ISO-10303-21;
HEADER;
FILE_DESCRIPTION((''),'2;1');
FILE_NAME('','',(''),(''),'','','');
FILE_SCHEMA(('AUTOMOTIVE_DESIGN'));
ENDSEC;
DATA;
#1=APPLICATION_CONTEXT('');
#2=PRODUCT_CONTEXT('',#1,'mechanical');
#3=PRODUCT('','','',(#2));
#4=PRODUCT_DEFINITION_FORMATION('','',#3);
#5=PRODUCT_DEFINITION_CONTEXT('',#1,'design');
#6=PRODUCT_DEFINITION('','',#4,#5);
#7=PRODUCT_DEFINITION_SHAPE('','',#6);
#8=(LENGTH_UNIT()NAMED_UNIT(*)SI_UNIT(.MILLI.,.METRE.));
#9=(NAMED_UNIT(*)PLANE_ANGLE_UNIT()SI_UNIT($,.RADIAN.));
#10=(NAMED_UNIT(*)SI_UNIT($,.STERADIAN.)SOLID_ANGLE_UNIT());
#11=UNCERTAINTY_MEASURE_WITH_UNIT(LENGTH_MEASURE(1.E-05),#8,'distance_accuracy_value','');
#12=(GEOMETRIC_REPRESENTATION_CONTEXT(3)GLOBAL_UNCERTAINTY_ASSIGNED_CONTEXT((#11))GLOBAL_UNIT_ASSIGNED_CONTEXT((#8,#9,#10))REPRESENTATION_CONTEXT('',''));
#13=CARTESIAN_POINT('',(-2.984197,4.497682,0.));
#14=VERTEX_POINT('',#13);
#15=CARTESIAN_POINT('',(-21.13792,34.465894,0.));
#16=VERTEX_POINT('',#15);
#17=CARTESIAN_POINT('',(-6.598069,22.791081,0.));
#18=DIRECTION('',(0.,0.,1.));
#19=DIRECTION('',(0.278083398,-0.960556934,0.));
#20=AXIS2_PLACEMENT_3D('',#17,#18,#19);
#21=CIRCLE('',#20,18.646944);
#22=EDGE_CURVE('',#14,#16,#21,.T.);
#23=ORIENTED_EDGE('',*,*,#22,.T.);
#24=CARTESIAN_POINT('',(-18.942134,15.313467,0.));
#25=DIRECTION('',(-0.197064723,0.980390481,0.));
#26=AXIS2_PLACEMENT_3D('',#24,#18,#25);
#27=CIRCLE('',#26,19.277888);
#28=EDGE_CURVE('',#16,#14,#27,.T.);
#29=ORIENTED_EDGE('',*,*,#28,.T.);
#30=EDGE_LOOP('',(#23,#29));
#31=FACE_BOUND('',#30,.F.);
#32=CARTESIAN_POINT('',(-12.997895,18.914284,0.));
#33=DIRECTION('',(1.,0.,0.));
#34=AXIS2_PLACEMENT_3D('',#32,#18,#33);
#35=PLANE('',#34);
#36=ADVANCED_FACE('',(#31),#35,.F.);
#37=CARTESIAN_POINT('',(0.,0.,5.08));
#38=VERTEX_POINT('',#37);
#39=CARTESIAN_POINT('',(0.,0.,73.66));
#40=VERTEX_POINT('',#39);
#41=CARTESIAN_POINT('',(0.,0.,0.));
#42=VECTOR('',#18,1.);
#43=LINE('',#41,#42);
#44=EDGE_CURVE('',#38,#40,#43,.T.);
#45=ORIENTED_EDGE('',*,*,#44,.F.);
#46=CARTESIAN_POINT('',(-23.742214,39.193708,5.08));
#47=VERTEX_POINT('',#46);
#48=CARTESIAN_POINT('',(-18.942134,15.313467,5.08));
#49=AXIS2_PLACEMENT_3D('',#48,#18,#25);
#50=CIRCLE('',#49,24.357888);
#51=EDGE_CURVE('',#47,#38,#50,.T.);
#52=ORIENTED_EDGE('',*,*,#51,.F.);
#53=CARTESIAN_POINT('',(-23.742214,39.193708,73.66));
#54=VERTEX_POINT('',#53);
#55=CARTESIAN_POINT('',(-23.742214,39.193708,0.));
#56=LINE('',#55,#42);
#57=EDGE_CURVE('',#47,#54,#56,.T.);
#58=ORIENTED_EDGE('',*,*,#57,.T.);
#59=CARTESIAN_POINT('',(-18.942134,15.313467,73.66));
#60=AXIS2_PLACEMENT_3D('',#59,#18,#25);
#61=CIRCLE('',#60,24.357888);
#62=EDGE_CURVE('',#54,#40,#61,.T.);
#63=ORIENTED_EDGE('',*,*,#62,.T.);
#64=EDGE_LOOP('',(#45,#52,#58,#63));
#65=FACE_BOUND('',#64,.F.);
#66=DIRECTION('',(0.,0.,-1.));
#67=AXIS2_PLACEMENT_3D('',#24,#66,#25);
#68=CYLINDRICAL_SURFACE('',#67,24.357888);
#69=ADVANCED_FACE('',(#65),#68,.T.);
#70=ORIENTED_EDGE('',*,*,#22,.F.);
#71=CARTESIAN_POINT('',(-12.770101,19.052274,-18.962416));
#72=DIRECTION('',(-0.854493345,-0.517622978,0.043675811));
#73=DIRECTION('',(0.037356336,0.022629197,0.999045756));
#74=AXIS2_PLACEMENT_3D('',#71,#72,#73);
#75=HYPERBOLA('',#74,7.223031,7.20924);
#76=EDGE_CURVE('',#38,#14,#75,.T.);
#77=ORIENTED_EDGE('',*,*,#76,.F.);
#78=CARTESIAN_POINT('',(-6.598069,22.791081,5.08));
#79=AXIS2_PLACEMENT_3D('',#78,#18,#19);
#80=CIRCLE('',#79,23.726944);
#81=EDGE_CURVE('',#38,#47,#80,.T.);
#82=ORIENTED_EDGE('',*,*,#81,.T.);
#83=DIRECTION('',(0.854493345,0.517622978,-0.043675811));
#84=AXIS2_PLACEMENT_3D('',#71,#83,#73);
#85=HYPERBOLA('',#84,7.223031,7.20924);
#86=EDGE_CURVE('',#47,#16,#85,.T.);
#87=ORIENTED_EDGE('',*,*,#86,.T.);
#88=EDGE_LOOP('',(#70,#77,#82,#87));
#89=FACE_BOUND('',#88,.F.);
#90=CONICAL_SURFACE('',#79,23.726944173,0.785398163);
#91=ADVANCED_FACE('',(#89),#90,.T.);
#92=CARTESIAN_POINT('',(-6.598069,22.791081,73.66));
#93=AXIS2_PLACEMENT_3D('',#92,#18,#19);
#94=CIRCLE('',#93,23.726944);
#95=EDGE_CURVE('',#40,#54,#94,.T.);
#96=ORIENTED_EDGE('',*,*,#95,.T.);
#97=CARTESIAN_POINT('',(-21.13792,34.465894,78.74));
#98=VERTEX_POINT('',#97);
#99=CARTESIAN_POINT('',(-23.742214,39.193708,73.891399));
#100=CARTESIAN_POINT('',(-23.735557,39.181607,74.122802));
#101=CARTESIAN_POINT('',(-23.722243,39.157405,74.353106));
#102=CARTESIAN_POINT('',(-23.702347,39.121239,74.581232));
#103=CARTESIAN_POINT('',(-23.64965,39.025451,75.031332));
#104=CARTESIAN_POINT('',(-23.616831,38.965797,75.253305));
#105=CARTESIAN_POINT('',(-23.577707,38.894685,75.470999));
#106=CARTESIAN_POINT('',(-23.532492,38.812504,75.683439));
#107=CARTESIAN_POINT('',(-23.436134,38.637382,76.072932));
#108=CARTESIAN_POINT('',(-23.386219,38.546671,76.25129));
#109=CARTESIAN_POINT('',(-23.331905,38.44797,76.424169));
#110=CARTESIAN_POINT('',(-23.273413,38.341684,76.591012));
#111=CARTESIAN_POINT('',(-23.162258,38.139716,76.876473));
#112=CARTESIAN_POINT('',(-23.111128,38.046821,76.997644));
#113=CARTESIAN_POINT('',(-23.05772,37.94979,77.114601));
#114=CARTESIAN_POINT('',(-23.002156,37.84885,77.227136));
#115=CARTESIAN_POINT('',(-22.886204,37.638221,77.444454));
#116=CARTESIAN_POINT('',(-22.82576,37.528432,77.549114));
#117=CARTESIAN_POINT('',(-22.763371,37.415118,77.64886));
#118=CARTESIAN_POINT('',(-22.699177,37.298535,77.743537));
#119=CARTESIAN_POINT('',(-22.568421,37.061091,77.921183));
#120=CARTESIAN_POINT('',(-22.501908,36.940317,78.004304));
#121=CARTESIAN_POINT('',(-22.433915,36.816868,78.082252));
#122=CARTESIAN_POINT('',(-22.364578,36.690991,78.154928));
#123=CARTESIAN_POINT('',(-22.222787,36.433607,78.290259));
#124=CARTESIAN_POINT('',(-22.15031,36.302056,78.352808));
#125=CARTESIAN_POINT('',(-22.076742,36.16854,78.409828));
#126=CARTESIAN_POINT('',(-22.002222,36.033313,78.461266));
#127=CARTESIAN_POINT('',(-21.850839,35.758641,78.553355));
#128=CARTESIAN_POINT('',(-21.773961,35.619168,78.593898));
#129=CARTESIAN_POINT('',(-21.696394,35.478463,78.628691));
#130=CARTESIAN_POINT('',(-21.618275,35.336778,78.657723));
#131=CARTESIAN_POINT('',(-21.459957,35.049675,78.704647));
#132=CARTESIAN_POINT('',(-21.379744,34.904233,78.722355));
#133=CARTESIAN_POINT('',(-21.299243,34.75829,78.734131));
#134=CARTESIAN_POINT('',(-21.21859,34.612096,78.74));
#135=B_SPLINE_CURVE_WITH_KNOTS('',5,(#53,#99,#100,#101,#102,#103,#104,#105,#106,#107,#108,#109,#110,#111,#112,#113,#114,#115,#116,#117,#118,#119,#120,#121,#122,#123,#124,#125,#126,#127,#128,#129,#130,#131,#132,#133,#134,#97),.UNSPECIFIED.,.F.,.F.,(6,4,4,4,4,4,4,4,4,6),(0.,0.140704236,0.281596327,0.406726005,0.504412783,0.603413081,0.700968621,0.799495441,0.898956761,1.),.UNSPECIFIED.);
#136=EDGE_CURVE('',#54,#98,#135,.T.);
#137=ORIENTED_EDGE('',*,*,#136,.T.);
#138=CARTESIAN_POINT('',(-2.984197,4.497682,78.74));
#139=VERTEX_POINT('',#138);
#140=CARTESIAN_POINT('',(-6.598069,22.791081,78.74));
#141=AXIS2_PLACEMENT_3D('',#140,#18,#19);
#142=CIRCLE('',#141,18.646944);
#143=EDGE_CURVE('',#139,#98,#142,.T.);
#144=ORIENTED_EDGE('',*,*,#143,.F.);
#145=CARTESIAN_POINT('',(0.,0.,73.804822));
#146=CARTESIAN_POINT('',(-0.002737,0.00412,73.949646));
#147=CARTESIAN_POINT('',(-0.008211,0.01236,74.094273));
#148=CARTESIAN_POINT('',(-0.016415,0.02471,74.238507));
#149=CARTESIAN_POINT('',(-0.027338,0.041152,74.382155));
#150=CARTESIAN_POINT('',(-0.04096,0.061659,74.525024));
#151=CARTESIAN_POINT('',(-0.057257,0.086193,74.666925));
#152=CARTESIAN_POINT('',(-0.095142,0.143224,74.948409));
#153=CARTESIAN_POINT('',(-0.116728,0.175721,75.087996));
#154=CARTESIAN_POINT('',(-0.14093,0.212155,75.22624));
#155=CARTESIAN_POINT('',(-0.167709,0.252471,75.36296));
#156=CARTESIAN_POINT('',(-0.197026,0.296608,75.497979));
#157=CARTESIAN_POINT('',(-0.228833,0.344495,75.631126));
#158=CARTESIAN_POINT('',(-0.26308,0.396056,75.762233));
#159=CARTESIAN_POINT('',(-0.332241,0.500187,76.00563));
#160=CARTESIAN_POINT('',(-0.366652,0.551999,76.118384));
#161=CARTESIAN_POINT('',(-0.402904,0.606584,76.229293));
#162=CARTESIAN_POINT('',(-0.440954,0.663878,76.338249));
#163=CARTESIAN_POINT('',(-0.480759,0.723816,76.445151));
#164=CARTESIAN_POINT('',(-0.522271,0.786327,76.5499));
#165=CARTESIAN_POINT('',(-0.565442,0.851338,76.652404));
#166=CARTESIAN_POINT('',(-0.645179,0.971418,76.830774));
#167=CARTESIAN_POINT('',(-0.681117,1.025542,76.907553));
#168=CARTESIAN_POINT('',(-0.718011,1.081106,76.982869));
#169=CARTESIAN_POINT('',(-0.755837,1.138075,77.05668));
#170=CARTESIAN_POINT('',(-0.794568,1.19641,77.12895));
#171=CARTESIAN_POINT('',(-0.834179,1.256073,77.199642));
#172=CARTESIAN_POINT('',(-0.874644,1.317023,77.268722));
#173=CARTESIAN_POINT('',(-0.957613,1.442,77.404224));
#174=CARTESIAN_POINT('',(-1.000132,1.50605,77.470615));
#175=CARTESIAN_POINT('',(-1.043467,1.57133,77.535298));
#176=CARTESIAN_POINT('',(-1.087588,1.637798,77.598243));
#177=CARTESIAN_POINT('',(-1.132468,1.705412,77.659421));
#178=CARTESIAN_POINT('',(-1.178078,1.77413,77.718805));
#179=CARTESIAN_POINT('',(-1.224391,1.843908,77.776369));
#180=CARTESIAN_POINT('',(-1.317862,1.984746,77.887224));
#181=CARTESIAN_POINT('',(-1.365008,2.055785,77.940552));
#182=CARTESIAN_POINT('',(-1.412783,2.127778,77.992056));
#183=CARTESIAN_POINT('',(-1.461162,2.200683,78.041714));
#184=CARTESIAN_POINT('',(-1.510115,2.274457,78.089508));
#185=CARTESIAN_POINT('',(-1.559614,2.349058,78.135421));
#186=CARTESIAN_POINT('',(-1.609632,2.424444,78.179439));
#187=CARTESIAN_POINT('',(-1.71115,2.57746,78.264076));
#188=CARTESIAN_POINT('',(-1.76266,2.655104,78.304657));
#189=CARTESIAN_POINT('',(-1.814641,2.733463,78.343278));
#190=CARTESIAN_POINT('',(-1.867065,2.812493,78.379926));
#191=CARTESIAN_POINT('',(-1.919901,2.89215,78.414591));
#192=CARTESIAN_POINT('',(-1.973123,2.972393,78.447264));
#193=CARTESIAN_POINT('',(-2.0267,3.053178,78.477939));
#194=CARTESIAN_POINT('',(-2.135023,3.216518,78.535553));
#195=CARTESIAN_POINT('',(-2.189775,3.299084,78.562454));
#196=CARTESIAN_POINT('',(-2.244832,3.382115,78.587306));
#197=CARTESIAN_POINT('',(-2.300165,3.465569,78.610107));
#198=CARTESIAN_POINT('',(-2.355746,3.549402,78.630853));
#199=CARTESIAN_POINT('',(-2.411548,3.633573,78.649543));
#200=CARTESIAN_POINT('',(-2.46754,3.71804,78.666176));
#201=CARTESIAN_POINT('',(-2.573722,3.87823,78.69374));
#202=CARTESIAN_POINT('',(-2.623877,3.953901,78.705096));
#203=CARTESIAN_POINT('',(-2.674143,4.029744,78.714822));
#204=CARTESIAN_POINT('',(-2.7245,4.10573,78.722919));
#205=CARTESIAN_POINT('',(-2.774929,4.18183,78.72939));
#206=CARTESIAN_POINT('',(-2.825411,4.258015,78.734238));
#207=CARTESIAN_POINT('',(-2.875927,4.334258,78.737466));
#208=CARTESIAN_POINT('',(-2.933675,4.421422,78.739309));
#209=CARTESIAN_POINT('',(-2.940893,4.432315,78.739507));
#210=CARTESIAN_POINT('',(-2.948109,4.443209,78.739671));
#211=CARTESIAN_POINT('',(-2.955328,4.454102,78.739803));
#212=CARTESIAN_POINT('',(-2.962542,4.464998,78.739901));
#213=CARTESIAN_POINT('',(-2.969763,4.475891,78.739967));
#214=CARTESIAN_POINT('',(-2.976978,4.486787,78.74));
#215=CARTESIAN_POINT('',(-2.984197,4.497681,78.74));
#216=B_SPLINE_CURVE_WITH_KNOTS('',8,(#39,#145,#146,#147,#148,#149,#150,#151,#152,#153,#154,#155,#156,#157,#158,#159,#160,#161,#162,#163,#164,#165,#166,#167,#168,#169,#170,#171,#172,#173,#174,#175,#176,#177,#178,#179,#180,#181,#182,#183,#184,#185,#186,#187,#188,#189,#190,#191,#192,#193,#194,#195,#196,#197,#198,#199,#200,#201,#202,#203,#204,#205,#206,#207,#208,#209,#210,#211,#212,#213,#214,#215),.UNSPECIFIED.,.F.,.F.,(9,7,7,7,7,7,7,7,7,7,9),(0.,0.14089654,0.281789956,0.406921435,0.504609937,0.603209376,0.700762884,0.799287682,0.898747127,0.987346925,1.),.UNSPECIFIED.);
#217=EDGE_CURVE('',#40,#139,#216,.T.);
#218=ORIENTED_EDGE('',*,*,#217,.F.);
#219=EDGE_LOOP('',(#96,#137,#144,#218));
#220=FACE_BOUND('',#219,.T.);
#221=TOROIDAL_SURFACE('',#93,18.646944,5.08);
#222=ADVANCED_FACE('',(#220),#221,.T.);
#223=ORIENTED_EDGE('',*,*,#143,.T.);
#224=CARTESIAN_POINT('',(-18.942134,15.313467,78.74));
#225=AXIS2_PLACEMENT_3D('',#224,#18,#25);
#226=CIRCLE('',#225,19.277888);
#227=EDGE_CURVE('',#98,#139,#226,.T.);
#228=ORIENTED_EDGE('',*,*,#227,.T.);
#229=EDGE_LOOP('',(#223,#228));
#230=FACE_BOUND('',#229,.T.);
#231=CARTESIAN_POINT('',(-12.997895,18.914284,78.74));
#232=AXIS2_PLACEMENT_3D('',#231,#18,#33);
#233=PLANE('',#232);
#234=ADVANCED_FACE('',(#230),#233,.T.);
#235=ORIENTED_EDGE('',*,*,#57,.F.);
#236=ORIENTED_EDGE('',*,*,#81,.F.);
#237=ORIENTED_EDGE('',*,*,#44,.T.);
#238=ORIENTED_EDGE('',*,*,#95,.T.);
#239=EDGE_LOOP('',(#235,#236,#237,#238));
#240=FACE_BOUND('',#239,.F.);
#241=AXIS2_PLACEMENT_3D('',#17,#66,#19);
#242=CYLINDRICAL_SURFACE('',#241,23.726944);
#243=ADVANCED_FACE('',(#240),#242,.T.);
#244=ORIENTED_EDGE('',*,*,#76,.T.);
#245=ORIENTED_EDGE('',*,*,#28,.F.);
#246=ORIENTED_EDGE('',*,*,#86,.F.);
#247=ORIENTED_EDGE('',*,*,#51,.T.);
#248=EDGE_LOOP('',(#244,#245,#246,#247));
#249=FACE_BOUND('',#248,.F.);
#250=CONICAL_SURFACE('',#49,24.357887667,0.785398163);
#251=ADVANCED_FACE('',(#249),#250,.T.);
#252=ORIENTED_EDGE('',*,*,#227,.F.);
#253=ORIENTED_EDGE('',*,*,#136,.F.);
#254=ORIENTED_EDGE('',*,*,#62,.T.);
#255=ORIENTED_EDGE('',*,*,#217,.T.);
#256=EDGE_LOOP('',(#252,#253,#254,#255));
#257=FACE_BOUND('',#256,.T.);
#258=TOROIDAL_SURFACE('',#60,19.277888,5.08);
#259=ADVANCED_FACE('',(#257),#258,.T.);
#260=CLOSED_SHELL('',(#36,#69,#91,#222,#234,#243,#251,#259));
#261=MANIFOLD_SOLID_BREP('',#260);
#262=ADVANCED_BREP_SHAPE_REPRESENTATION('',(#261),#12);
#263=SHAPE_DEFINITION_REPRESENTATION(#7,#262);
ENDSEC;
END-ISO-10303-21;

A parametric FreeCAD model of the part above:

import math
import FreeCAD as App
import Part
import Sketcher
from FreeCAD import Vector


def edges_at(feature, points):
    """Names of the edges that pass closest to the given points."""
    edges = feature.Shape.Edges
    near = lambda p: min(range(len(edges)), key=lambda i: edges[i].distToShape(Part.Vertex(*p))[0])
    return sorted({f"Edge{near(p) + 1}" for p in points})

doc = App.newDocument("Part")
params = doc.addObject("Spreadsheet::Sheet", "Params")
for row, (alias, value) in enumerate([
    ("pad1_length", "3.1 in"),
    ("fillet_radius", "0.2 in"),
    ("chamfer_size", "0.2 in"),
], start=1):
    params.set(f"A{row}", alias)
    params.set(f"B{row}", "=" + value)
    params.setAlias(f"B{row}", alias)

body = doc.addObject("PartDesign::Body", "Body")

sketch1 = body.newObject("Sketcher::SketchObject", "Sketch")
sketch1.AttachmentSupport = (doc.getObject("XY_Plane"), [""])
sketch1.MapMode = "FlatFace"
sketch1.addGeometry([
    Part.ArcOfCircle(Part.Circle(Vector(-19, 15, 0), Vector(0, 0, 1), 24), math.radians(101), math.radians(321)),
    Part.ArcOfCircle(Part.Circle(Vector(-7, 23, 0), Vector(0, 0, 1), 24), math.radians(-74), math.radians(136)),
], False)
sketch1.addConstraint([
    Sketcher.Constraint("Coincident", 0, 1, 1, 2),
    Sketcher.Constraint("Coincident", 1, 1, 0, 2),
    Sketcher.Constraint("Coincident", 1, 1, -1, 1),
    Sketcher.Constraint("Radius", 0, 24.357888),
    Sketcher.Constraint("Radius", 1, 23.726944),
    Sketcher.Constraint("DistanceX", 1, 3, -1, 1, 6.598069),
    Sketcher.Constraint("DistanceY", -1, 1, 0, 1, 39.193708),
])
pad1 = body.newObject("PartDesign::Pad", "Pad")
pad1.Profile = sketch1
pad1.setExpression("Length", "Params.pad1_length")
doc.recompute()

fillet = body.newObject("PartDesign::Fillet", "Fillet")
fillet.Base = (pad1, edges_at(pad1, [(-39.776, 2.693, 78.74), (13.696, 35.084, 78.74)]))
fillet.setExpression("Radius", "Params.fillet_radius")
doc.recompute()

chamfer = body.newObject("PartDesign::Chamfer", "Chamfer")
chamfer.Base = (fillet, edges_at(fillet, [(-39.776, 2.693, 0), (13.696, 35.084, 0)]))
chamfer.setExpression("Size", "Params.chamfer_size")

doc.recompute()
